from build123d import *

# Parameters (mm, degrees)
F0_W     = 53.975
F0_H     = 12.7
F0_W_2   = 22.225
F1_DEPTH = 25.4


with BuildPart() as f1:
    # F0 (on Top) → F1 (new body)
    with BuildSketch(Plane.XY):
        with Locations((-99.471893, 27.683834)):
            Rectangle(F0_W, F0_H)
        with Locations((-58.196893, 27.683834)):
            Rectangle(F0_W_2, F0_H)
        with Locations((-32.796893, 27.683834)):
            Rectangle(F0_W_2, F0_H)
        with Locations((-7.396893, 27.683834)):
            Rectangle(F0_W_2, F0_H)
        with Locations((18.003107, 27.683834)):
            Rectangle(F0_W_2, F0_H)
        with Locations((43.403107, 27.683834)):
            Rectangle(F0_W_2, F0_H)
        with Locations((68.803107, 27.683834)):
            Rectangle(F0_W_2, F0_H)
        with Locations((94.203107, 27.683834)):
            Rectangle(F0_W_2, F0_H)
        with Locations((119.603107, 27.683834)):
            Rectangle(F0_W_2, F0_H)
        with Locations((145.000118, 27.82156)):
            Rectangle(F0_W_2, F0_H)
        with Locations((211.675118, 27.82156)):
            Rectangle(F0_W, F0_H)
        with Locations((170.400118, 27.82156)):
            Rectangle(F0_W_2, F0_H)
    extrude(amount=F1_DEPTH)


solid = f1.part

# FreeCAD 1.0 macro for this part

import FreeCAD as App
import Part
import Sketcher
Q = App.Units.Quantity

doc = App.newDocument("Part")
params = doc.addObject("Spreadsheet::Sheet", "Params")
for row, (alias, value) in enumerate([
    ("sketch1_height", "0.5 in"),
    ("sketch1_width", "2.125 in"),
    ("sketch1_width2", "0.875 in"),
    ("pad1_length", "1 in"),
], start=1):
    params.set(f"A{row}", alias)
    params.set(f"B{row}", "=" + value)
    params.setAlias(f"B{row}", alias)

body = doc.addObject("PartDesign::Body", "Body")
body.AllowCompound = True

sketch1 = body.newObject("Sketcher::SketchObject", "Sketch")
sketch1.AttachmentSupport = (doc.getObject("XY_Plane"), [""])
sketch1.MapMode = "FlatFace"
sketch1.addGeometry([
    Part.LineSegment(App.Vector(-126, 34, 0), App.Vector(-126, 21, 0)),
    Part.LineSegment(App.Vector(-126, 21, 0), App.Vector(-72, 21, 0)),
    Part.LineSegment(App.Vector(-72, 21, 0), App.Vector(-72, 34, 0)),
    Part.LineSegment(App.Vector(-72, 34, 0), App.Vector(-126, 34, 0)),
    Part.LineSegment(App.Vector(-69, 34, 0), App.Vector(-69, 21, 0)),
    Part.LineSegment(App.Vector(-69, 21, 0), App.Vector(-47, 21, 0)),
    Part.LineSegment(App.Vector(-47, 21, 0), App.Vector(-47, 34, 0)),
    Part.LineSegment(App.Vector(-47, 34, 0), App.Vector(-69, 34, 0)),
    Part.LineSegment(App.Vector(-44, 34, 0), App.Vector(-44, 21, 0)),
    Part.LineSegment(App.Vector(-44, 21, 0), App.Vector(-22, 21, 0)),
    Part.LineSegment(App.Vector(-22, 21, 0), App.Vector(-22, 34, 0)),
    Part.LineSegment(App.Vector(-22, 34, 0), App.Vector(-44, 34, 0)),
    Part.LineSegment(App.Vector(-19, 34, 0), App.Vector(-19, 21, 0)),
    Part.LineSegment(App.Vector(-19, 21, 0), App.Vector(4, 21, 0)),
    Part.LineSegment(App.Vector(4, 21, 0), App.Vector(4, 34, 0)),
    Part.LineSegment(App.Vector(4, 34, 0), App.Vector(-19, 34, 0)),
    Part.LineSegment(App.Vector(7, 34, 0), App.Vector(7, 21, 0)),
    Part.LineSegment(App.Vector(7, 21, 0), App.Vector(29, 21, 0)),
    Part.LineSegment(App.Vector(29, 21, 0), App.Vector(29, 34, 0)),
    Part.LineSegment(App.Vector(29, 34, 0), App.Vector(7, 34, 0)),
    Part.LineSegment(App.Vector(32, 34, 0), App.Vector(32, 21, 0)),
    Part.LineSegment(App.Vector(32, 21, 0), App.Vector(55, 21, 0)),
    Part.LineSegment(App.Vector(55, 21, 0), App.Vector(55, 34, 0)),
    Part.LineSegment(App.Vector(55, 34, 0), App.Vector(32, 34, 0)),
    Part.LineSegment(App.Vector(58, 34, 0), App.Vector(58, 21, 0)),
    Part.LineSegment(App.Vector(58, 21, 0), App.Vector(80, 21, 0)),
    Part.LineSegment(App.Vector(80, 21, 0), App.Vector(80, 34, 0)),
    Part.LineSegment(App.Vector(80, 34, 0), App.Vector(58, 34, 0)),
    Part.LineSegment(App.Vector(83, 34, 0), App.Vector(83, 21, 0)),
    Part.LineSegment(App.Vector(83, 21, 0), App.Vector(105, 21, 0)),
    Part.LineSegment(App.Vector(105, 21, 0), App.Vector(105, 34, 0)),
    Part.LineSegment(App.Vector(105, 34, 0), App.Vector(83, 34, 0)),
    Part.LineSegment(App.Vector(108, 34, 0), App.Vector(108, 21, 0)),
    Part.LineSegment(App.Vector(108, 21, 0), App.Vector(131, 21, 0)),
    Part.LineSegment(App.Vector(131, 21, 0), App.Vector(131, 34, 0)),
    Part.LineSegment(App.Vector(131, 34, 0), App.Vector(108, 34, 0)),
    Part.LineSegment(App.Vector(134, 34, 0), App.Vector(134, 21, 0)),
    Part.LineSegment(App.Vector(134, 21, 0), App.Vector(156, 21, 0)),
    Part.LineSegment(App.Vector(156, 21, 0), App.Vector(156, 34, 0)),
    Part.LineSegment(App.Vector(156, 34, 0), App.Vector(134, 34, 0)),
    Part.LineSegment(App.Vector(185, 34, 0), App.Vector(185, 21, 0)),
    Part.LineSegment(App.Vector(185, 21, 0), App.Vector(239, 21, 0)),
    Part.LineSegment(App.Vector(239, 21, 0), App.Vector(239, 34, 0)),
    Part.LineSegment(App.Vector(239, 34, 0), App.Vector(185, 34, 0)),
    Part.LineSegment(App.Vector(159, 34, 0), App.Vector(159, 21, 0)),
    Part.LineSegment(App.Vector(159, 21, 0), App.Vector(182, 21, 0)),
    Part.LineSegment(App.Vector(182, 21, 0), App.Vector(182, 34, 0)),
    Part.LineSegment(App.Vector(182, 34, 0), App.Vector(159, 34, 0)),
], False)
sketch1.addConstraint([
    Sketcher.Constraint("Coincident", 0, 2, 1, 1),
    Sketcher.Constraint("Coincident", 1, 2, 2, 1),
    Sketcher.Constraint("Coincident", 2, 2, 3, 1),
    Sketcher.Constraint("Coincident", 3, 2, 0, 1),
    Sketcher.Constraint("Coincident", 4, 2, 5, 1),
    Sketcher.Constraint("Coincident", 5, 2, 6, 1),
    Sketcher.Constraint("Coincident", 6, 2, 7, 1),
    Sketcher.Constraint("Coincident", 7, 2, 4, 1),
    Sketcher.Constraint("Coincident", 8, 2, 9, 1),
    Sketcher.Constraint("Coincident", 9, 2, 10, 1),
    Sketcher.Constraint("Coincident", 10, 2, 11, 1),
    Sketcher.Constraint("Coincident", 11, 2, 8, 1),
    Sketcher.Constraint("Coincident", 12, 2, 13, 1),
    Sketcher.Constraint("Coincident", 13, 2, 14, 1),
    Sketcher.Constraint("Coincident", 14, 2, 15, 1),
    Sketcher.Constraint("Coincident", 15, 2, 12, 1),
    Sketcher.Constraint("Coincident", 16, 2, 17, 1),
    Sketcher.Constraint("Coincident", 17, 2, 18, 1),
    Sketcher.Constraint("Coincident", 18, 2, 19, 1),
    Sketcher.Constraint("Coincident", 19, 2, 16, 1),
    Sketcher.Constraint("Coincident", 20, 2, 21, 1),
    Sketcher.Constraint("Coincident", 21, 2, 22, 1),
    Sketcher.Constraint("Coincident", 22, 2, 23, 1),
    Sketcher.Constraint("Coincident", 23, 2, 20, 1),
    Sketcher.Constraint("Coincident", 24, 2, 25, 1),
    Sketcher.Constraint("Coincident", 25, 2, 26, 1),
    Sketcher.Constraint("Coincident", 26, 2, 27, 1),
    Sketcher.Constraint("Coincident", 27, 2, 24, 1),
    Sketcher.Constraint("Coincident", 28, 2, 29, 1),
    Sketcher.Constraint("Coincident", 29, 2, 30, 1),
    Sketcher.Constraint("Coincident", 30, 2, 31, 1),
    Sketcher.Constraint("Coincident", 31, 2, 28, 1),
    Sketcher.Constraint("Coincident", 32, 2, 33, 1),
    Sketcher.Constraint("Coincident", 33, 2, 34, 1),
    Sketcher.Constraint("Coincident", 34, 2, 35, 1),
    Sketcher.Constraint("Coincident", 35, 2, 32, 1),
    Sketcher.Constraint("Coincident", 36, 2, 37, 1),
    Sketcher.Constraint("Coincident", 37, 2, 38, 1),
    Sketcher.Constraint("Coincident", 38, 2, 39, 1),
    Sketcher.Constraint("Coincident", 39, 2, 36, 1),
    Sketcher.Constraint("Coincident", 40, 2, 41, 1),
    Sketcher.Constraint("Coincident", 41, 2, 42, 1),
    Sketcher.Constraint("Coincident", 42, 2, 43, 1),
    Sketcher.Constraint("Coincident", 43, 2, 40, 1),
    Sketcher.Constraint("Coincident", 44, 2, 45, 1),
    Sketcher.Constraint("Coincident", 45, 2, 46, 1),
    Sketcher.Constraint("Coincident", 46, 2, 47, 1),
    Sketcher.Constraint("Coincident", 47, 2, 44, 1),
    Sketcher.Constraint("Vertical", 0),
    Sketcher.Constraint("Horizontal", 1),
    Sketcher.Constraint("Vertical", 2),
    Sketcher.Constraint("Horizontal", 3),
    Sketcher.Constraint("Vertical", 4),
    Sketcher.Constraint("Horizontal", 5),
    Sketcher.Constraint("Vertical", 6),
    Sketcher.Constraint("Horizontal", 7),
    Sketcher.Constraint("Vertical", 8),
    Sketcher.Constraint("Horizontal", 9),
    Sketcher.Constraint("Vertical", 10),
    Sketcher.Constraint("Horizontal", 11),
    Sketcher.Constraint("Vertical", 12),
    Sketcher.Constraint("Horizontal", 13),
    Sketcher.Constraint("Vertical", 14),
    Sketcher.Constraint("Horizontal", 15),
    Sketcher.Constraint("Vertical", 16),
    Sketcher.Constraint("Horizontal", 17),
    Sketcher.Constraint("Vertical", 18),
    Sketcher.Constraint("Horizontal", 19),
    Sketcher.Constraint("Vertical", 20),
    Sketcher.Constraint("Horizontal", 21),
    Sketcher.Constraint("Vertical", 22),
    Sketcher.Constraint("Horizontal", 23),
    Sketcher.Constraint("Vertical", 24),
    Sketcher.Constraint("Horizontal", 25),
    Sketcher.Constraint("Vertical", 26),
    Sketcher.Constraint("Horizontal", 27),
    Sketcher.Constraint("Vertical", 28),
    Sketcher.Constraint("Horizontal", 29),
    Sketcher.Constraint("Vertical", 30),
    Sketcher.Constraint("Horizontal", 31),
    Sketcher.Constraint("Vertical", 32),
    Sketcher.Constraint("Horizontal", 33),
    Sketcher.Constraint("Vertical", 34),
    Sketcher.Constraint("Horizontal", 35),
    Sketcher.Constraint("Vertical", 36),
    Sketcher.Constraint("Horizontal", 37),
    Sketcher.Constraint("Vertical", 38),
    Sketcher.Constraint("Horizontal", 39),
    Sketcher.Constraint("Vertical", 40),
    Sketcher.Constraint("Horizontal", 41),
    Sketcher.Constraint("Vertical", 42),
    Sketcher.Constraint("Horizontal", 43),
    Sketcher.Constraint("Vertical", 44),
    Sketcher.Constraint("Horizontal", 45),
    Sketcher.Constraint("Vertical", 46),
    Sketcher.Constraint("Horizontal", 47),
    Sketcher.Constraint("Horizontal", 1, 2, 4, 2),
    Sketcher.Constraint("Horizontal", 3, 2, 6, 2),
    Sketcher.Constraint("Horizontal", 5, 2, 8, 2),
    Sketcher.Constraint("Horizontal", 7, 2, 10, 2),
    Sketcher.Constraint("Horizontal", 9, 2, 12, 2),
    Sketcher.Constraint("Horizontal", 11, 2, 14, 2),
    Sketcher.Constraint("Horizontal", 13, 2, 16, 2),
    Sketcher.Constraint("Horizontal", 15, 2, 18, 2),
    Sketcher.Constraint("Horizontal", 17, 2, 20, 2),
    Sketcher.Constraint("Horizontal", 19, 2, 22, 2),
    Sketcher.Constraint("Horizontal", 21, 2, 24, 2),
    Sketcher.Constraint("Horizontal", 23, 2, 26, 2),
    Sketcher.Constraint("Horizontal", 25, 2, 28, 2),
    Sketcher.Constraint("Horizontal", 27, 2, 30, 2),
    Sketcher.Constraint("Horizontal", 29, 2, 32, 2),
    Sketcher.Constraint("Horizontal", 31, 2, 34, 2),
    Sketcher.Constraint("Horizontal", 37, 2, 40, 2),
    Sketcher.Constraint("Horizontal", 39, 2, 42, 2),
    Sketcher.Constraint("Horizontal", 41, 2, 44, 2),
    Sketcher.Constraint("Horizontal", 43, 2, 46, 2),
    Sketcher.Constraint("Equal", 7, 9),
    Sketcher.Constraint("Equal", 11, 13),
    Sketcher.Constraint("Equal", 15, 17),
    Sketcher.Constraint("Equal", 19, 21),
    Sketcher.Constraint("Equal", 23, 25),
    Sketcher.Constraint("Equal", 27, 29),
    Sketcher.Constraint("Equal", 31, 33),
    Sketcher.Constraint("Equal", 35, 37),
    Sketcher.Constraint("Equal", 3, 41),
    Sketcher.Constraint("Equal", 39, 45),
    Sketcher.Constraint("Equal", 34, 36),
    Sketcher.Constraint("DistanceY", 0, 2, 0, 1, Q("0.5 in")),
    Sketcher.Constraint("DistanceX", 1, 2, 5, 2, Q("1 in")),
    Sketcher.Constraint("DistanceX", 4, 2, 8, 2, Q("1 in")),
    Sketcher.Constraint("DistanceX", 8, 2, 12, 2, Q("1 in")),
    Sketcher.Constraint("DistanceX", 12, 2, 16, 2, Q("1 in")),
    Sketcher.Constraint("DistanceX", 16, 2, 20, 2, Q("1 in")),
    Sketcher.Constraint("DistanceX", 20, 2, 24, 2, Q("1 in")),
    Sketcher.Constraint("DistanceX", 24, 2, 28, 2, Q("1 in")),
    Sketcher.Constraint("DistanceX", 28, 2, 32, 2, Q("1 in")),
    Sketcher.Constraint("DistanceX", 36, 2, 40, 2, Q("2 in")),
    Sketcher.Constraint("DistanceX", 44, 2, 40, 2, Q("1 in")),
    Sketcher.Constraint("DistanceX", 1, 1, 1, 2, Q("2.125 in")),
    Sketcher.Constraint("DistanceX", 5, 1, 5, 2, Q("0.875 in")),
    Sketcher.Constraint("DistanceX", -1, 1, 36, 2, 133.887618),
    Sketcher.Constraint("DistanceY", -1, 1, 36, 2, 21.47156),
    Sketcher.Constraint("DistanceX", 33, 2, 36, 2, 3.172011),
    Sketcher.Constraint("DistanceY", -1, 1, 0, 2, 21.333834),
])
sketch1.setExpression("Constraints[127]", "Params.sketch1_height")
sketch1.setExpression("Constraints[138]", "Params.sketch1_width")
sketch1.setExpression("Constraints[139]", "Params.sketch1_width2")
pad1 = body.newObject("PartDesign::Pad", "Pad")
pad1.Profile = sketch1
pad1.setExpression("Length", "Params.pad1_length")

doc.recompute()
